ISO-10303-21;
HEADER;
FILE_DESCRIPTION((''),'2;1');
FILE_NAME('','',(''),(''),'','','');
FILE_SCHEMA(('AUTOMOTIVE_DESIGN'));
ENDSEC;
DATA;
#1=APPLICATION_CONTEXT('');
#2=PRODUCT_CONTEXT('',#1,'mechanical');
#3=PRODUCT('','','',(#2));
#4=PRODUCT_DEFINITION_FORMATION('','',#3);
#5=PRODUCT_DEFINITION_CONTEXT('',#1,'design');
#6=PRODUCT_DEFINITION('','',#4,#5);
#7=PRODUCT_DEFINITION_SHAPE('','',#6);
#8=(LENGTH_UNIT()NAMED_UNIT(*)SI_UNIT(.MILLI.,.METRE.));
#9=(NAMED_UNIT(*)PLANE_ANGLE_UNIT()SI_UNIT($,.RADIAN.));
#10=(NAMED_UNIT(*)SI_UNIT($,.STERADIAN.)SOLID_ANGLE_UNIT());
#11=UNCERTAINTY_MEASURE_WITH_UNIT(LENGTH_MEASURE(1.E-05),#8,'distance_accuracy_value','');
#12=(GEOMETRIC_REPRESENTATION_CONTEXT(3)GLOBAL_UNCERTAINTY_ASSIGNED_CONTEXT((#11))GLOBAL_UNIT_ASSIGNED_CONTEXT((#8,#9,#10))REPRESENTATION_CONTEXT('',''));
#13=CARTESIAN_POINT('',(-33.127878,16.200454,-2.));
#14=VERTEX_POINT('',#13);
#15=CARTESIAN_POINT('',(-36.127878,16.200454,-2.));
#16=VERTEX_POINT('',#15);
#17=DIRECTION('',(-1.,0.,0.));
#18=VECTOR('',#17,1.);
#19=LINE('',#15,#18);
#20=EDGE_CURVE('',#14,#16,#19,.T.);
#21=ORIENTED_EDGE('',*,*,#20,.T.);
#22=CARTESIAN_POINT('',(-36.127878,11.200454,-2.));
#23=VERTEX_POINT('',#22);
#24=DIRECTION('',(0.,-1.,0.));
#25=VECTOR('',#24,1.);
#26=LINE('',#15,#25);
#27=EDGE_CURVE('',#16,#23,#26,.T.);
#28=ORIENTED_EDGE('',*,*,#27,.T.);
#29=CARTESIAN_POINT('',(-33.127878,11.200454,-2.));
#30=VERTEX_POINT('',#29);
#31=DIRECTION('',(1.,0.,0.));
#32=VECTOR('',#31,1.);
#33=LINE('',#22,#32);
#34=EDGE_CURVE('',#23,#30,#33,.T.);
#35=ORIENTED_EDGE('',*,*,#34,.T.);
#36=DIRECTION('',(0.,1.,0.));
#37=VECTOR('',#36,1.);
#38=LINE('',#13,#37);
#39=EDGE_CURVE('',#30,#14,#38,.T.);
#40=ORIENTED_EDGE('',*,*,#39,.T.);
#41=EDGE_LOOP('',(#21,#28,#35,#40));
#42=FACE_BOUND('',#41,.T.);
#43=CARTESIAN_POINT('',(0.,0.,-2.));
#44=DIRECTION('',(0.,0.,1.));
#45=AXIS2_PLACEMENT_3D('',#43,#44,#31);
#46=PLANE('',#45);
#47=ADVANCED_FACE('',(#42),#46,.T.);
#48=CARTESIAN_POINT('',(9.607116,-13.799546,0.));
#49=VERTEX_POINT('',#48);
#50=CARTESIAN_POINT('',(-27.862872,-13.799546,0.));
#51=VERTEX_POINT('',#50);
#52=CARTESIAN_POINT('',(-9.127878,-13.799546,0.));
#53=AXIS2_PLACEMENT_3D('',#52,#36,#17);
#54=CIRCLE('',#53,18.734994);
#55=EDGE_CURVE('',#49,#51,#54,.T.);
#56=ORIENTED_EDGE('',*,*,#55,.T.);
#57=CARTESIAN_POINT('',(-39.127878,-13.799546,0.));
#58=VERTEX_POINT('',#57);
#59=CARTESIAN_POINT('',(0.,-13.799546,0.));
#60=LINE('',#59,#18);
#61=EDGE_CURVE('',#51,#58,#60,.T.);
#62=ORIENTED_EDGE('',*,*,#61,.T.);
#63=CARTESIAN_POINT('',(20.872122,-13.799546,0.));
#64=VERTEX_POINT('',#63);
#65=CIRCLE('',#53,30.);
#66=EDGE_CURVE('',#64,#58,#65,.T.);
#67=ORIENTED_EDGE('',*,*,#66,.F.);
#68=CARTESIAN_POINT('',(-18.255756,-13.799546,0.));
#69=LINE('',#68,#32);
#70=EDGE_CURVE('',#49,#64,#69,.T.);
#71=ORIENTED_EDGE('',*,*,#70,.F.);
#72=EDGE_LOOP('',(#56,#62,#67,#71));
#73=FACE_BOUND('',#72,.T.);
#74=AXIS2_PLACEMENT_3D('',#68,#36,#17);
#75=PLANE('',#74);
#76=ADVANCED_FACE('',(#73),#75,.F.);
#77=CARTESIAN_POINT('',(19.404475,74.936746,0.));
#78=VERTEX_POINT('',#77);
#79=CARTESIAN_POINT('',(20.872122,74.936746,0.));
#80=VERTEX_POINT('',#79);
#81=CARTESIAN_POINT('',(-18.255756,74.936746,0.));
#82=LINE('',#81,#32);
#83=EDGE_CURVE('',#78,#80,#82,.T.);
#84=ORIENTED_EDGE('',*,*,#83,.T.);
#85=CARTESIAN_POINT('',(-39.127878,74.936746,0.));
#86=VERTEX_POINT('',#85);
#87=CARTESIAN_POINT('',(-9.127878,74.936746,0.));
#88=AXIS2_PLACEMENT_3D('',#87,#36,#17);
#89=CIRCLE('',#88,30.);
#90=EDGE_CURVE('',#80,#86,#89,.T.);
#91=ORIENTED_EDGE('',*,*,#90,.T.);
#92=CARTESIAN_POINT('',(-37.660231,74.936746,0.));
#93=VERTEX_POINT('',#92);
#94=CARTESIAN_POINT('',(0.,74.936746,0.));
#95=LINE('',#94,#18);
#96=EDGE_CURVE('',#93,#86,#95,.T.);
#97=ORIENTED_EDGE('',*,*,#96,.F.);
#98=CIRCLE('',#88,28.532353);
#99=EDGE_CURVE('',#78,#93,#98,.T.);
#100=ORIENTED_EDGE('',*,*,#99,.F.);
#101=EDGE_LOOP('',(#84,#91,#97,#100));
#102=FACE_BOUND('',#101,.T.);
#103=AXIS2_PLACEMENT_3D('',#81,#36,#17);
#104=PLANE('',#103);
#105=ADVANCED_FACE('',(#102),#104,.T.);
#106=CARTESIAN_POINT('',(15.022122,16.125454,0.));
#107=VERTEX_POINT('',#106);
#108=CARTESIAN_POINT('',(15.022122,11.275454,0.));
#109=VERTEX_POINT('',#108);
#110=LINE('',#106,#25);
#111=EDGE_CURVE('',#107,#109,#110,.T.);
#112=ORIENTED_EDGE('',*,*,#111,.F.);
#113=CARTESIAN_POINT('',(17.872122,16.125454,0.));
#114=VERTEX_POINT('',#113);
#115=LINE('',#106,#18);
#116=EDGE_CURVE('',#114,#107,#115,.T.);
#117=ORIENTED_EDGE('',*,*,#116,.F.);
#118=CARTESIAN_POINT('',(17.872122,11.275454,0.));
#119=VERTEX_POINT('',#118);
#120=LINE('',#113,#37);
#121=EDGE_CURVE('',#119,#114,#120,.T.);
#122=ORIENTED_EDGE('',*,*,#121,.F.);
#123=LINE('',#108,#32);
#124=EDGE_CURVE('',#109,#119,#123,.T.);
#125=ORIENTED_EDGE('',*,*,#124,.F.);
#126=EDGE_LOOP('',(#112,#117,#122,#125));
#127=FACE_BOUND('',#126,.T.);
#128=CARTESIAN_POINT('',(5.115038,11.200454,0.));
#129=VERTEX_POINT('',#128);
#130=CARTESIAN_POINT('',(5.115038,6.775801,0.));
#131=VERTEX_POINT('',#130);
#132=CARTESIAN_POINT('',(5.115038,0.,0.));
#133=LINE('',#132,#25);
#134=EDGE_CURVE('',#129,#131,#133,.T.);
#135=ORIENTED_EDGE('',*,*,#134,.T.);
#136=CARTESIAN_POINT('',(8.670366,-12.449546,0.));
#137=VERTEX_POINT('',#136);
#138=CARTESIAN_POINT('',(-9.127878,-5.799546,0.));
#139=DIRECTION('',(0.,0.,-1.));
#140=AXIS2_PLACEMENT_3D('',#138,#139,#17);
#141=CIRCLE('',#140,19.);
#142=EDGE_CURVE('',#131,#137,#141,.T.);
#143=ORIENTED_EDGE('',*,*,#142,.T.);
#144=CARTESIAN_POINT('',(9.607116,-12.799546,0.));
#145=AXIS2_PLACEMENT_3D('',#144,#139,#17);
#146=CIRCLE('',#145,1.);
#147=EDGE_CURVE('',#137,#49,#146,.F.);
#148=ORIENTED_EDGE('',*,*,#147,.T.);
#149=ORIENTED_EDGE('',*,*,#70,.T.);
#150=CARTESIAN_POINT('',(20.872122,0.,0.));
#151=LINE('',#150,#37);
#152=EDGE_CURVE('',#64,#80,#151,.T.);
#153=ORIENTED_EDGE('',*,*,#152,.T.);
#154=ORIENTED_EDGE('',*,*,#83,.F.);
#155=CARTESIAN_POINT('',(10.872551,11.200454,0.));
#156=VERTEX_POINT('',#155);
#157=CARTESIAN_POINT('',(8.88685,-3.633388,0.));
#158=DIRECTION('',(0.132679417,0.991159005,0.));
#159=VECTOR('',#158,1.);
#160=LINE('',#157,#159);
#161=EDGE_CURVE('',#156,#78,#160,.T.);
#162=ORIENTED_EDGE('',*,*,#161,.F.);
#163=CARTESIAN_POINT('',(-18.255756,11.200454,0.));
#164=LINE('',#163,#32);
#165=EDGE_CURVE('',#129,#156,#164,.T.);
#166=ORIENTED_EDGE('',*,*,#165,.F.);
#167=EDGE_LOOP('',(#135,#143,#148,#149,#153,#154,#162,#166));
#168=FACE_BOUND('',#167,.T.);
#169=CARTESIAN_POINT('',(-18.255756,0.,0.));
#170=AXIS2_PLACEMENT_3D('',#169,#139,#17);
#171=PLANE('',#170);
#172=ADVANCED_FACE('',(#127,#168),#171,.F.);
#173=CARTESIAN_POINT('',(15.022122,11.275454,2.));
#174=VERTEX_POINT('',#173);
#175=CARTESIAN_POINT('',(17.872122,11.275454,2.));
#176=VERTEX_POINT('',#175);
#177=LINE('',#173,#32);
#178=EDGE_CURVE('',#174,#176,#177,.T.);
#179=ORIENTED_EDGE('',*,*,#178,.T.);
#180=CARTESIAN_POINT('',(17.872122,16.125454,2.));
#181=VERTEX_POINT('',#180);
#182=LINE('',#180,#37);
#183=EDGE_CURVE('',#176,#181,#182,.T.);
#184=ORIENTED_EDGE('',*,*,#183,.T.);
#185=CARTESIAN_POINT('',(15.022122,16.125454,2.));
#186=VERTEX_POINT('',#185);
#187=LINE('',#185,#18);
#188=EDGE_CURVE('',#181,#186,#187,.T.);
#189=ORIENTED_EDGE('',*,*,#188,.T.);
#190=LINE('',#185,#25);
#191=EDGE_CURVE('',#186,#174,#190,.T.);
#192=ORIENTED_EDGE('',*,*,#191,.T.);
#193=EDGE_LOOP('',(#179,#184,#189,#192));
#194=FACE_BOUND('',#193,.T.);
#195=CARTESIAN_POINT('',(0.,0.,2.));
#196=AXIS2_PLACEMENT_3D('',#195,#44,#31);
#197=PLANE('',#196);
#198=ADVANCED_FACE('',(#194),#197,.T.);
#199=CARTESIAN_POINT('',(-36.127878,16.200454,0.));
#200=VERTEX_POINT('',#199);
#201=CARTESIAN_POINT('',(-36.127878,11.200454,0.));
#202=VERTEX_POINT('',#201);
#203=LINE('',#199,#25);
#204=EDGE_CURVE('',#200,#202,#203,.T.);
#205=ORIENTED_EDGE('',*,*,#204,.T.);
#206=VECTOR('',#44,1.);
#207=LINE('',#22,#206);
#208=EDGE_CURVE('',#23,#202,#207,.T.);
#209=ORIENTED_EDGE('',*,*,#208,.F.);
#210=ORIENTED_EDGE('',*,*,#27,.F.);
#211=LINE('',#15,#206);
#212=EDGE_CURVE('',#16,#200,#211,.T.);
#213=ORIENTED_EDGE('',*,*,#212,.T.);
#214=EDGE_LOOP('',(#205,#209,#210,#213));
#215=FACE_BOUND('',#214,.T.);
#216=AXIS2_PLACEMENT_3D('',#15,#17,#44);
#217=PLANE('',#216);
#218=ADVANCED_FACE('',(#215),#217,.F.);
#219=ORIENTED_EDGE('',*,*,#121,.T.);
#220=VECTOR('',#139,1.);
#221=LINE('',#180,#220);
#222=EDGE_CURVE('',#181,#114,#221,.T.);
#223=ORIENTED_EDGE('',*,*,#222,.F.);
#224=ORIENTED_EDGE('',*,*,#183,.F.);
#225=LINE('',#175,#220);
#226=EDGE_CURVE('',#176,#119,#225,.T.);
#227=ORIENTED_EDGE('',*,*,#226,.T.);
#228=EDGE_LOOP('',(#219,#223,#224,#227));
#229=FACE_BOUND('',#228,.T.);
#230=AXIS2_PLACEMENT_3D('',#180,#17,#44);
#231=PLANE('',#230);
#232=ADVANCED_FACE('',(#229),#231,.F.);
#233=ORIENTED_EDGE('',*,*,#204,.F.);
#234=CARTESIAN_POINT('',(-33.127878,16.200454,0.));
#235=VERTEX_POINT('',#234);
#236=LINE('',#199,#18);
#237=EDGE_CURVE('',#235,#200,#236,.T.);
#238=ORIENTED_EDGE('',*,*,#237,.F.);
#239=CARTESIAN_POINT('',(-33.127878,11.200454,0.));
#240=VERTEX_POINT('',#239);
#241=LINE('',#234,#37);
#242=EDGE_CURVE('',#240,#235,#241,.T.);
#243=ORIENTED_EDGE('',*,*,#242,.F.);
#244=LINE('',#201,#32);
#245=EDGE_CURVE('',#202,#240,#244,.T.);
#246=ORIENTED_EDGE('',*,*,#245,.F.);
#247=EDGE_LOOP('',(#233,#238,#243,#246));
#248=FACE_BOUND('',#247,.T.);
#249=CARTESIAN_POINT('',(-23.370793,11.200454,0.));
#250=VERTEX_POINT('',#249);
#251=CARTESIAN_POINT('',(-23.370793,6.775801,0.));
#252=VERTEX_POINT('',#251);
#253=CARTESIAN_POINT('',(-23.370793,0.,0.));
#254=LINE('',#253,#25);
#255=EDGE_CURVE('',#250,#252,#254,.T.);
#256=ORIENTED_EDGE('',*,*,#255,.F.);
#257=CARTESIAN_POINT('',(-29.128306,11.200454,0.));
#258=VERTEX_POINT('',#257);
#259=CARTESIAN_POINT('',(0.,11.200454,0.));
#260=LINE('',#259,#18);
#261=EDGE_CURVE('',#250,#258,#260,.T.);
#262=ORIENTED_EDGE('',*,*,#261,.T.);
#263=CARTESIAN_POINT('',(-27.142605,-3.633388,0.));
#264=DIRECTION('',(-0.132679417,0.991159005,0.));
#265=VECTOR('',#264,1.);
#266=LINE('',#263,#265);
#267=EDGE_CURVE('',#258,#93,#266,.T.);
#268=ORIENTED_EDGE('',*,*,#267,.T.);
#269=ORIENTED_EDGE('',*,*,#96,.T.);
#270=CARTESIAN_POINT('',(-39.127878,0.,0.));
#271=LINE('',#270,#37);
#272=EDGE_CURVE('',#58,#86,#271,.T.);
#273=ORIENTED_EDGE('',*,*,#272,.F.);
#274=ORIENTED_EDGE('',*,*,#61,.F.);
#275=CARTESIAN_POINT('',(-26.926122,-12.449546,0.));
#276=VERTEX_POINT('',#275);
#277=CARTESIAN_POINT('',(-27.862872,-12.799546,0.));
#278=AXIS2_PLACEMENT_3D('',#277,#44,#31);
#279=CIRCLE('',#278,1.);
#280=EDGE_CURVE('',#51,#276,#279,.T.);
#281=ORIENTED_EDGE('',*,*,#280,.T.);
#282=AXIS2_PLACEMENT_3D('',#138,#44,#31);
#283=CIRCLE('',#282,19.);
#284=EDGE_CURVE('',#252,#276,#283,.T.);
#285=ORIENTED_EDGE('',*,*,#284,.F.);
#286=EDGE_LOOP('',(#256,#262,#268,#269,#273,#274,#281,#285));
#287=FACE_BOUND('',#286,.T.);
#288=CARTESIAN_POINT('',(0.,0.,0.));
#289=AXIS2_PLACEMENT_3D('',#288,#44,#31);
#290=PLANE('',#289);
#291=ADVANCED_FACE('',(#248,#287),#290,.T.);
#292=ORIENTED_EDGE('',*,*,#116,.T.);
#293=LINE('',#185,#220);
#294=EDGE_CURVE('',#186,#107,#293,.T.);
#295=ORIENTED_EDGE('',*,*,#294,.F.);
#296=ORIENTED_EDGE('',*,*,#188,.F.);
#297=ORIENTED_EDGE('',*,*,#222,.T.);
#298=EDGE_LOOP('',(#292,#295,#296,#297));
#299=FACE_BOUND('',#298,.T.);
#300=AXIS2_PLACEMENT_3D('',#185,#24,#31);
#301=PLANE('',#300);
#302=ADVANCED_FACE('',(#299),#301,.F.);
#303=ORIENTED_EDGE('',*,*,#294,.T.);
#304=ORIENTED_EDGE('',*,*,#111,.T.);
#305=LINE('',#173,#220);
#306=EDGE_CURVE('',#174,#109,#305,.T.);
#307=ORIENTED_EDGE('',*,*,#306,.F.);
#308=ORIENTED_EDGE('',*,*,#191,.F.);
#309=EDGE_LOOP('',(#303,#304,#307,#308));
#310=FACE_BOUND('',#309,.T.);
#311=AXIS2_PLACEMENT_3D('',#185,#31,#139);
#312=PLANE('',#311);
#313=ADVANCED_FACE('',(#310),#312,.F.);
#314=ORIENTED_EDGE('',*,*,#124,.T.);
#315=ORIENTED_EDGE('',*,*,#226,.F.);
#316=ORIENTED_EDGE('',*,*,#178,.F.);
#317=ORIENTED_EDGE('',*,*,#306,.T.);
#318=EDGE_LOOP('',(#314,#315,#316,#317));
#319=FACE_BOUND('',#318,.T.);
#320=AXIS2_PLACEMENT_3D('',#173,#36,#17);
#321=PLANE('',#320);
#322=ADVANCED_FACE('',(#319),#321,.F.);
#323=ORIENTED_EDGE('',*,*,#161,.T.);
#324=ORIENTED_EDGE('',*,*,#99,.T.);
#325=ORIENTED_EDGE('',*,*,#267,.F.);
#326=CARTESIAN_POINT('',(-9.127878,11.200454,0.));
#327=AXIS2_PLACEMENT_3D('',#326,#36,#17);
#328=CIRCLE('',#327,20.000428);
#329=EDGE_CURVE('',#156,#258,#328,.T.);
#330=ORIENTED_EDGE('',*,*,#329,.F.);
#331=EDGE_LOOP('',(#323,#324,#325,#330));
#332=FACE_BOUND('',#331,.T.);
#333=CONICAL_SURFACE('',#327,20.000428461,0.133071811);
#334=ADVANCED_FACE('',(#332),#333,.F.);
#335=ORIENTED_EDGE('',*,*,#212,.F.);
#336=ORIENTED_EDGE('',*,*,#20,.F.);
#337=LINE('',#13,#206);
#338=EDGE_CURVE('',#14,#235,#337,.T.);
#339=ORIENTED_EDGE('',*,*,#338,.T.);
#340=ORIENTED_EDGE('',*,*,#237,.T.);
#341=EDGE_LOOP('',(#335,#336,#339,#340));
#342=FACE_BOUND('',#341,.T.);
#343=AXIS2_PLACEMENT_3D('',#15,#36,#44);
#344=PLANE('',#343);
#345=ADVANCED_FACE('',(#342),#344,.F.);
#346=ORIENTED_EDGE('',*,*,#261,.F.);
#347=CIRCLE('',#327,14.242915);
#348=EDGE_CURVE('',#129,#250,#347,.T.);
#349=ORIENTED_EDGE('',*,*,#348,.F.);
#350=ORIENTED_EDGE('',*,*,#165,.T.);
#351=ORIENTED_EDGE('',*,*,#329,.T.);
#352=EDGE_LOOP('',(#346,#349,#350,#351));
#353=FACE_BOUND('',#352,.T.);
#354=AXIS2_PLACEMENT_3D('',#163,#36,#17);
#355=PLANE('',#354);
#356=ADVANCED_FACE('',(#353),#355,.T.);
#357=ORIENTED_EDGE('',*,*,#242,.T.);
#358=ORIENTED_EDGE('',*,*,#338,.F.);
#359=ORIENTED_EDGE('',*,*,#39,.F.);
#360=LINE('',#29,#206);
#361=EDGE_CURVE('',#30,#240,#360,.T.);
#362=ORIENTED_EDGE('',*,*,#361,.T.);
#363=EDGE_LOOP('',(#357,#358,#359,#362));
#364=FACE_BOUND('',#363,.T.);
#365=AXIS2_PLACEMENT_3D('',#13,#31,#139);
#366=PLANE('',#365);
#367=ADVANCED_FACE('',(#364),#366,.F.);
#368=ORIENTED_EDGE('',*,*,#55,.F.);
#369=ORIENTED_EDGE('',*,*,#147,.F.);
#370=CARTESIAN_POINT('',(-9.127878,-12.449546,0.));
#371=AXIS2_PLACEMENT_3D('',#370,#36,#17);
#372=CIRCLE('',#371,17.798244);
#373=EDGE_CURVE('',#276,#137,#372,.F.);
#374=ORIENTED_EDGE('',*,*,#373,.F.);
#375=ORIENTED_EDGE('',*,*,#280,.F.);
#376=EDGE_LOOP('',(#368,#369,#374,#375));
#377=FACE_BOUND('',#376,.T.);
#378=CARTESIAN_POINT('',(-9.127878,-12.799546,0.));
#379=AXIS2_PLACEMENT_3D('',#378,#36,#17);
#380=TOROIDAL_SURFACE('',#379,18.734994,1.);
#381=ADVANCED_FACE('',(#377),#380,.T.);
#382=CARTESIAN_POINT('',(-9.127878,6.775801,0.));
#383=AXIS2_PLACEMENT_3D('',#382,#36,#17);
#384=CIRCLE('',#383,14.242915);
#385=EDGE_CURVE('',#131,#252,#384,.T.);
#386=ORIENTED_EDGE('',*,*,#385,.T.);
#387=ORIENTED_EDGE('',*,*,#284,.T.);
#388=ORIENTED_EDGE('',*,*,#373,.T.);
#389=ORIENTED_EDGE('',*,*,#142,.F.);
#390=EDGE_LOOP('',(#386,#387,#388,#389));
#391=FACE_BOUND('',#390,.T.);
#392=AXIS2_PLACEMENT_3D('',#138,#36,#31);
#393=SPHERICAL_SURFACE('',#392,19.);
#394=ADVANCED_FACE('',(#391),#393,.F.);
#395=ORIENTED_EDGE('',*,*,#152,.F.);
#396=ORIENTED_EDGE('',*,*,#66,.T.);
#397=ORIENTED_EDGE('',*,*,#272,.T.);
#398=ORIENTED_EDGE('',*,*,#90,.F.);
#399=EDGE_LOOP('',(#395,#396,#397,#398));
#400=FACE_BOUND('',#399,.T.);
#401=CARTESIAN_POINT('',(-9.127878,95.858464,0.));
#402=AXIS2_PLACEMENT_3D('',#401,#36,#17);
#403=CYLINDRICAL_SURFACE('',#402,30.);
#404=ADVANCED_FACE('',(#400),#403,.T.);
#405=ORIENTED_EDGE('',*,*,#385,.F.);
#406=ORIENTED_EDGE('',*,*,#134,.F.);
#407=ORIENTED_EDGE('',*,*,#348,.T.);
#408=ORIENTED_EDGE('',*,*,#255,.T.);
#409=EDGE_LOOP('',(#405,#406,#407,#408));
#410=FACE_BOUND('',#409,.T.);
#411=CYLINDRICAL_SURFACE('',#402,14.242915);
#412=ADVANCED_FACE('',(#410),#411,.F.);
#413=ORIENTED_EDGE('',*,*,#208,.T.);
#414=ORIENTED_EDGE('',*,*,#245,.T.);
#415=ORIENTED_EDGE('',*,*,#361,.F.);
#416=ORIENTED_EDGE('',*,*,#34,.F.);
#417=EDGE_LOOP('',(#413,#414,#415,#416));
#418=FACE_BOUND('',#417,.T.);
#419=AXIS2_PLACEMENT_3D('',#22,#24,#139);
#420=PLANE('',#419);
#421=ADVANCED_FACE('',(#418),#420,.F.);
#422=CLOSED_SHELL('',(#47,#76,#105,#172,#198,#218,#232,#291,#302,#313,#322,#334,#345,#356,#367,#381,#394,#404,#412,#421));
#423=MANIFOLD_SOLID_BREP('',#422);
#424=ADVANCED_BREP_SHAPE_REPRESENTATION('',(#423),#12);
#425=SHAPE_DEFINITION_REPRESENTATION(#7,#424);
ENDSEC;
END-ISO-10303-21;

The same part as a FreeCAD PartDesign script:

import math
import FreeCAD as App
import Part
import Sketcher


def edges_at(feature, points):
    """Names of the edges that pass closest to the given points."""
    edges = feature.Shape.Edges
    near = lambda p: min(range(len(edges)), key=lambda i: edges[i].distToShape(Part.Vertex(*p))[0])
    return sorted({f"Edge{near(p) + 1}" for p in points})


def add_polygon(sketch, points):
    """Adds a closed chain of lines whose ends are joined by coincident constraints."""
    first, n = sketch.GeometryCount, len(points)
    for a, b in zip(points, points[1:] + points[:1]):
        sketch.addGeometry(Part.LineSegment(App.Vector(*a, 0), App.Vector(*b, 0)), False)
    for i in range(n):
        sketch.addConstraint(Sketcher.Constraint("Coincident", first + i, 2, first + (i + 1) % n, 1))

doc = App.newDocument("Part")
body = doc.addObject("PartDesign::Body", "Body")

# Sketch on XY plane
sketch1 = doc.addObject("Sketcher::SketchObject", "Sketch")
body.addObject(sketch1)
sketch1.AttachmentSupport = (doc.XY_Plane, [""])
sketch1.MapMode = "FlatFace"
sketch1.addGeometry(Part.LineSegment(App.Vector(-29.1, 11.2, 0), App.Vector(-37.7, 74.9, 0)), False)
sketch1.addGeometry(Part.LineSegment(App.Vector(-37.7, 74.9, 0), App.Vector(-39.1, 74.9, 0)), False)
sketch1.addGeometry(Part.LineSegment(App.Vector(-39.1, 74.9, 0), App.Vector(-39.1, -13.8, 0)), False)
sketch1.addGeometry(Part.LineSegment(App.Vector(-39.1, -13.8, 0), App.Vector(-26.4, -13.8, 0)), False)
sketch1.addGeometry(Part.ArcOfCircle(Part.Circle(App.Vector(-9.1, -5.8, 0), App.Vector(0, 0, 1), 19), math.radians(139), math.radians(205)), False)
sketch1.addGeometry(Part.LineSegment(App.Vector(-23.4, 6.8, 0), App.Vector(-23.4, 11.2, 0)), False)
sketch1.addGeometry(Part.LineSegment(App.Vector(-23.4, 11.2, 0), App.Vector(-29.1, 11.2, 0)), False)
sketch1.addGeometry(Part.LineSegment(App.Vector(-9.1, 74.9, 0), App.Vector(-9.1, -13.8, 0)), True)  # axis
sketch1.addConstraint(Sketcher.Constraint("Coincident", 0, 2, 1, 1))
sketch1.addConstraint(Sketcher.Constraint("Coincident", 1, 2, 2, 1))
sketch1.addConstraint(Sketcher.Constraint("Coincident", 2, 2, 3, 1))
sketch1.addConstraint(Sketcher.Constraint("Coincident", 3, 2, 4, 2))
sketch1.addConstraint(Sketcher.Constraint("Coincident", 4, 1, 5, 1))
sketch1.addConstraint(Sketcher.Constraint("Coincident", 5, 2, 6, 1))
sketch1.addConstraint(Sketcher.Constraint("Coincident", 6, 2, 0, 1))
sketch1.addConstraint(Sketcher.Constraint("Horizontal", 1))
sketch1.addConstraint(Sketcher.Constraint("Vertical", 2))
sketch1.addConstraint(Sketcher.Constraint("Horizontal", 3))
sketch1.addConstraint(Sketcher.Constraint("Vertical", 5))
sketch1.addConstraint(Sketcher.Constraint("Horizontal", 6))
sketch1.addConstraint(Sketcher.Constraint("Vertical", 7))
sketch1.addConstraint(Sketcher.Constraint("Horizontal", 1, 2, 7, 1))
sketch1.addConstraint(Sketcher.Constraint("Horizontal", 3, 2, 7, 2))
sketch1.addConstraint(Sketcher.Constraint("Vertical", 4, 3, 7, 1))
sketch1.addConstraint(Sketcher.Constraint("Radius", 4, 19.0))
sketch1.addConstraint(Sketcher.Constraint("DistanceX", 1, 2, 4, 3, 30.0))
sketch1.addConstraint(Sketcher.Constraint("DistanceY", 2, 2, 4, 3, 8.0))
sketch1.addConstraint(Sketcher.Constraint("DistanceY", 4, 3, 5, 2, 17.0))
sketch1.addConstraint(Sketcher.Constraint("DistanceY", -1, 1, 4, 1, 6.775801))
sketch1.addConstraint(Sketcher.Constraint("Distance", 0, 64.304811))
sketch1.addConstraint(Sketcher.Constraint("DistanceX", 1, 2, 1, 1, 1.467647))
sketch1.addConstraint(Sketcher.Constraint("DistanceX", 6, 2, 6, 1, 5.757513))
sketch1.addConstraint(Sketcher.Constraint("DistanceY", 2, 2, 2, 1, 88.736292))
sketch1.addConstraint(Sketcher.Constraint("DistanceX", 0, 2, -1, 1, 37.660231))
revolution = doc.addObject("PartDesign::Revolution", "Revolution")
body.addObject(revolution)
revolution.Profile = sketch1
revolution.ReferenceAxis = (sketch1, ["Axis0"])
revolution.Angle = 180

# Sketch on XY plane
sketch2 = doc.addObject("Sketcher::SketchObject", "Sketch001")
body.addObject(sketch2)
sketch2.AttachmentSupport = (doc.XY_Plane, [""])
sketch2.MapMode = "FlatFace"
add_polygon(sketch2, [(15, 16.1), (15, 11.3), (17.9, 11.3), (17.9, 16.1)])  # lines 0-3
sketch2.addConstraint(Sketcher.Constraint("Vertical", 0))
sketch2.addConstraint(Sketcher.Constraint("Horizontal", 1))
sketch2.addConstraint(Sketcher.Constraint("Vertical", 2))
sketch2.addConstraint(Sketcher.Constraint("Horizontal", 3))
sketch2.addConstraint(Sketcher.Constraint("DistanceX", 1, 1, 1, 2, 2.85))
sketch2.addConstraint(Sketcher.Constraint("DistanceY", 0, 2, 0, 1, 4.85))
sketch2.addConstraint(Sketcher.Constraint("DistanceX", -1, 1, 0, 2, 15.022122))
sketch2.addConstraint(Sketcher.Constraint("DistanceY", -1, 1, 0, 2, 11.275454))
pad1 = doc.addObject("PartDesign::Pad", "Pad")
body.addObject(pad1)
pad1.Profile = sketch2
pad1.Length = 2

# Sketch on XY plane
sketch3 = doc.addObject("Sketcher::SketchObject", "Sketch002")
body.addObject(sketch3)
sketch3.AttachmentSupport = (doc.XY_Plane, [""])
sketch3.MapMode = "FlatFace"
add_polygon(sketch3, [(-36.1, 16.2), (-36.1, 11.2), (-33.1, 11.2), (-33.1, 16.2)])  # lines 0-3
sketch3.addConstraint(Sketcher.Constraint("Vertical", 0))
sketch3.addConstraint(Sketcher.Constraint("Horizontal", 1))
sketch3.addConstraint(Sketcher.Constraint("Vertical", 2))
sketch3.addConstraint(Sketcher.Constraint("Horizontal", 3))
sketch3.addConstraint(Sketcher.Constraint("DistanceX", 1, 1, 1, 2, 3.0))
sketch3.addConstraint(Sketcher.Constraint("DistanceY", 0, 2, 0, 1, 5.0))
sketch3.addConstraint(Sketcher.Constraint("DistanceX", 0, 2, -1, 1, 36.127878))
sketch3.addConstraint(Sketcher.Constraint("DistanceY", -1, 1, 0, 2, 11.200454))
pocket1 = doc.addObject("PartDesign::Pocket", "Pocket")
body.addObject(pocket1)
pocket1.Profile = sketch3
pocket1.Length = 2
doc.recompute()

fillet = doc.addObject("PartDesign::Fillet", "Fillet")
body.addObject(fillet)
fillet.Base = (pocket1, edges_at(pocket1, [(-9.128, -13.8, -17.234)]))
fillet.Radius = 1

doc.recompute()
